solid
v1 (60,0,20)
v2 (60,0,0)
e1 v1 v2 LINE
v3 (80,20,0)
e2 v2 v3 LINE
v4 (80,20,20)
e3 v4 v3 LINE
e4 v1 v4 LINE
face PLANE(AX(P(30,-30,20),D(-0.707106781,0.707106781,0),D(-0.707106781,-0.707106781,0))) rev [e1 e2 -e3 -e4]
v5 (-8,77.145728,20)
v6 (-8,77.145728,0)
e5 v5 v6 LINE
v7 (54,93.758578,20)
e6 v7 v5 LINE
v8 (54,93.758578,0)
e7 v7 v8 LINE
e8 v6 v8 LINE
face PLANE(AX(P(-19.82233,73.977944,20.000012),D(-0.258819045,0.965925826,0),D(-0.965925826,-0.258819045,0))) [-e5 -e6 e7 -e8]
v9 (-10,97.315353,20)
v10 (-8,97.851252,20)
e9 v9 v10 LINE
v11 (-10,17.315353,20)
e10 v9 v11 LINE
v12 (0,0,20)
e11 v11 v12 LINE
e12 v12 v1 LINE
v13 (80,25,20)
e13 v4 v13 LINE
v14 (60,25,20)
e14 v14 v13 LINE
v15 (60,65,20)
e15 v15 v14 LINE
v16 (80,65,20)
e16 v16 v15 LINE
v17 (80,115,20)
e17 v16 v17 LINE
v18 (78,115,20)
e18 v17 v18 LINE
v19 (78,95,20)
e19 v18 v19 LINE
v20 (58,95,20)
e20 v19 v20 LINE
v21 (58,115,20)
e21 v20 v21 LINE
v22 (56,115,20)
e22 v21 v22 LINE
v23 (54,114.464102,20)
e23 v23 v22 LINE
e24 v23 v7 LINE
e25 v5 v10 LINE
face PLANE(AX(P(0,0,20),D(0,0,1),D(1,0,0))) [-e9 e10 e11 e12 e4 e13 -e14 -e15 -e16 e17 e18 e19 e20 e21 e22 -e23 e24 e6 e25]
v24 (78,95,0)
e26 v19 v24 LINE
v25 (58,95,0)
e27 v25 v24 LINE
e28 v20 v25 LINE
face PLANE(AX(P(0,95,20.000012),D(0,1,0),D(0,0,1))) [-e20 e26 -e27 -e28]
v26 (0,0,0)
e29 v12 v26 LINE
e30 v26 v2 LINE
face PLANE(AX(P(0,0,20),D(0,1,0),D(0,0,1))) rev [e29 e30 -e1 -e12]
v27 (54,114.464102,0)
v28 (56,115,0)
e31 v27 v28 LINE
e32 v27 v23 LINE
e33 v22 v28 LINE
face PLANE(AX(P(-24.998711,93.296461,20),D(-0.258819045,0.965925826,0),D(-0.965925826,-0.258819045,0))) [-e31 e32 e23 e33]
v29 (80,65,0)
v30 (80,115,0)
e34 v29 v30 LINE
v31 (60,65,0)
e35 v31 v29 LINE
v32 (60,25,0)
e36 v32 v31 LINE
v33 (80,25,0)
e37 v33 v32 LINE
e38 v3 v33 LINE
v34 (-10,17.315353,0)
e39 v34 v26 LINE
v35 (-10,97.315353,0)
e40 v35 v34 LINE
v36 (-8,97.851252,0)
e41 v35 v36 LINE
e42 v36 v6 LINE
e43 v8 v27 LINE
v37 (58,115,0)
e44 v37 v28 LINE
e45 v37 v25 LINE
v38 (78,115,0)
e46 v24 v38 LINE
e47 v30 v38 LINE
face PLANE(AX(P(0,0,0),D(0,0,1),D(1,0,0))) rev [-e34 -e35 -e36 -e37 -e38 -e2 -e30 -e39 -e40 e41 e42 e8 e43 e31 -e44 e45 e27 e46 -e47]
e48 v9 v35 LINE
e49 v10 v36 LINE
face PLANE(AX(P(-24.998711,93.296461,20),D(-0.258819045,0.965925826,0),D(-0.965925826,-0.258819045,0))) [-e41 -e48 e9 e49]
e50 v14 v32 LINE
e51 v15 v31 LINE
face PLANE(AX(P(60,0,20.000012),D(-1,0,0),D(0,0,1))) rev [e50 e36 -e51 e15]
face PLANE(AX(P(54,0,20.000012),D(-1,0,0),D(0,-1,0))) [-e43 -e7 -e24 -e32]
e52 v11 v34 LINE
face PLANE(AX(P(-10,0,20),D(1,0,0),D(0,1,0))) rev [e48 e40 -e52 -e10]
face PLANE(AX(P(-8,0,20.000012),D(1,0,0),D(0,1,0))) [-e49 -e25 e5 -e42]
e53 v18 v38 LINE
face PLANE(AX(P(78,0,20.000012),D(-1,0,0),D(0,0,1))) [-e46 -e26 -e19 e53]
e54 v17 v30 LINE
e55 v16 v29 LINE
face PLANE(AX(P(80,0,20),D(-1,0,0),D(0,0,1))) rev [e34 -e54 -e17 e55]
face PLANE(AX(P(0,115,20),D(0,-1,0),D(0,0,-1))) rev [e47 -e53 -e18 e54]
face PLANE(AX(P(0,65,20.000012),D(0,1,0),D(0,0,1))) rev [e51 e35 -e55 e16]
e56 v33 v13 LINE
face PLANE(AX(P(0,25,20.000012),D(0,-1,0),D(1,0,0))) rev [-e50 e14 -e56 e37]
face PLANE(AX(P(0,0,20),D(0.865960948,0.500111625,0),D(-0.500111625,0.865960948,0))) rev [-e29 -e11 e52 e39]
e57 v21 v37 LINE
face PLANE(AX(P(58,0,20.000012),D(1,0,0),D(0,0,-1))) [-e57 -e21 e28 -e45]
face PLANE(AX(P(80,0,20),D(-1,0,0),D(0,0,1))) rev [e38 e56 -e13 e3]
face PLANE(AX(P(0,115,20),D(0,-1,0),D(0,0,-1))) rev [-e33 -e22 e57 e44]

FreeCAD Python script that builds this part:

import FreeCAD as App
import Part
import Sketcher
Q = App.Units.Quantity

doc = App.newDocument("Part")
body = doc.addObject("PartDesign::Body", "Body")

# Sketch on XY plane
sketch1 = body.newObject("Sketcher::SketchObject", "Sketch")
sketch1.AttachmentSupport = (doc.getObject("XY_Plane"), [""])
sketch1.MapMode = "FlatFace"
sketch1.addGeometry([
    Part.LineSegment(App.Vector(0, 0, 0), App.Vector(60, 0, 0)),  # 0
    Part.LineSegment(App.Vector(60, 0, 0), App.Vector(80, 20, 0)),  # 1
    Part.LineSegment(App.Vector(80, 20, 0), App.Vector(80, 115, 0)),  # 2
    Part.LineSegment(App.Vector(80, 115, 0), App.Vector(56, 115, 0)),  # 3
    Part.LineSegment(App.Vector(56, 115, 0), App.Vector(-10, 97, 0)),  # 4
    Part.LineSegment(App.Vector(-10, 97, 0), App.Vector(-10, 17, 0)),  # 5
    Part.LineSegment(App.Vector(-10, 17, 0), App.Vector(0, 0, 0)),  # 6
], False)
sketch1.addConstraint([
    Sketcher.Constraint("Coincident", 0, 2, 1, 1),
    Sketcher.Constraint("Coincident", 1, 2, 2, 1),
    Sketcher.Constraint("Coincident", 2, 2, 3, 1),
    Sketcher.Constraint("Coincident", 3, 2, 4, 1),
    Sketcher.Constraint("Coincident", 4, 2, 5, 1),
    Sketcher.Constraint("Coincident", 5, 2, 6, 1),
    Sketcher.Constraint("Coincident", 6, 2, 0, 1),
    Sketcher.Constraint("Horizontal", 0),
    Sketcher.Constraint("Vertical", 2),
    Sketcher.Constraint("Horizontal", 3),
    Sketcher.Constraint("Vertical", 5),
    Sketcher.Constraint("Coincident", 6, 2, -1, 1),
    Sketcher.Constraint("DistanceX", 0, 1, 0, 2, Q("60 mm")),
    Sketcher.Constraint("DistanceX", 3, 2, 3, 1, Q("24 mm")),
    Sketcher.Constraint("DistanceY", 2, 1, 2, 2, Q("95 mm")),
    Sketcher.Constraint("DistanceY", 5, 2, 5, 1, Q("80 mm")),
    Sketcher.Constraint("Angle", 1, Q("45 deg")),
    Sketcher.Constraint("Angle", 4, Q("-165 deg")),
    Sketcher.Constraint("DistanceX", -1, 1, 1, 2, Q("80 mm")),
    Sketcher.Constraint("DistanceX", 4, 2, -1, 1, Q("10 mm")),
])
pad1 = body.newObject("PartDesign::Pad", "Pad")
pad1.Profile = sketch1
pad1.Length = 20

# Sketch on XY plane
sketch2 = body.newObject("Sketcher::SketchObject", "Sketch001")
sketch2.AttachmentSupport = (doc.getObject("XY_Plane"), [""])
sketch2.MapMode = "FlatFace"
sketch2.AttachmentOffset = App.Placement(App.Vector(0, 0, 20), App.Rotation())
sketch2.addGeometry([
    Part.LineSegment(App.Vector(58, 115, 0), App.Vector(58, 95, 0)),  # 0
    Part.LineSegment(App.Vector(58, 95, 0), App.Vector(78, 95, 0)),  # 1
    Part.LineSegment(App.Vector(78, 95, 0), App.Vector(78, 115, 0)),  # 2
    Part.LineSegment(App.Vector(78, 115, 0), App.Vector(58, 115, 0)),  # 3
    Part.LineSegment(App.Vector(54, 94, 0), App.Vector(54, 114, 0)),  # 4
    Part.LineSegment(App.Vector(54, 114, 0), App.Vector(-8, 98, 0)),  # 5
    Part.LineSegment(App.Vector(-8, 98, 0), App.Vector(-8, 77, 0)),  # 6
    Part.LineSegment(App.Vector(-8, 77, 0), App.Vector(54, 94, 0)),  # 7
    Part.LineSegment(App.Vector(60, 65, 0), App.Vector(60, 25, 0)),  # 8
    Part.LineSegment(App.Vector(60, 25, 0), App.Vector(80, 25, 0)),  # 9
    Part.LineSegment(App.Vector(80, 25, 0), App.Vector(80, 65, 0)),  # 10
    Part.LineSegment(App.Vector(80, 65, 0), App.Vector(60, 65, 0)),  # 11
], False)
sketch2.addConstraint([
    Sketcher.Constraint("Coincident", 0, 2, 1, 1),
    Sketcher.Constraint("Coincident", 1, 2, 2, 1),
    Sketcher.Constraint("Coincident", 2, 2, 3, 1),
    Sketcher.Constraint("Coincident", 3, 2, 0, 1),
    Sketcher.Constraint("Coincident", 4, 2, 5, 1),
    Sketcher.Constraint("Coincident", 5, 2, 6, 1),
    Sketcher.Constraint("Coincident", 6, 2, 7, 1),
    Sketcher.Constraint("Coincident", 7, 2, 4, 1),
    Sketcher.Constraint("Coincident", 8, 2, 9, 1),
    Sketcher.Constraint("Coincident", 9, 2, 10, 1),
    Sketcher.Constraint("Coincident", 10, 2, 11, 1),
    Sketcher.Constraint("Coincident", 11, 2, 8, 1),
    Sketcher.Constraint("Vertical", 0),
    Sketcher.Constraint("Horizontal", 1),
    Sketcher.Constraint("Vertical", 2),
    Sketcher.Constraint("Horizontal", 3),
    Sketcher.Constraint("Vertical", 4),
    Sketcher.Constraint("Vertical", 6),
    Sketcher.Constraint("Vertical", 8),
    Sketcher.Constraint("Horizontal", 9),
    Sketcher.Constraint("Vertical", 10),
    Sketcher.Constraint("Horizontal", 11),
    Sketcher.Constraint("Parallel", 5, 7),
    Sketcher.Constraint("Equal", 3, 9),
    Sketcher.Constraint("Equal", 11, 0),
    Sketcher.Constraint("DistanceX", 1, 1, 1, 2, Q("20 mm")),
    Sketcher.Constraint("DistanceY", 8, 2, 8, 1, Q("40 mm")),
    Sketcher.Constraint("Angle", 5, Q("-165 deg")),
    Sketcher.Constraint("DistanceX", -1, 1, 0, 2, Q("58 mm")),
    Sketcher.Constraint("DistanceY", -1, 1, 0, 2, Q("95 mm")),
    Sketcher.Constraint("DistanceX", -1, 1, 4, 2, Q("54 mm")),
    Sketcher.Constraint("DistanceX", 5, 2, -1, 1, Q("8 mm")),
    Sketcher.Constraint("DistanceX", -1, 1, 8, 2, Q("60 mm")),
    Sketcher.Constraint("DistanceY", -1, 1, 8, 2, Q("25 mm")),
    Sketcher.Constraint("DistanceY", -1, 1, 4, 2, Q("114.464102 mm")),
    Sketcher.Constraint("DistanceY", 4, 1, 4, 2, Q("20.705524 mm")),
])
pocket1 = body.newObject("PartDesign::Pocket", "Pocket")
pocket1.Profile = sketch2
pocket1.Type = "ThroughAll"
pocket1.Midplane = True

doc.recompute()
